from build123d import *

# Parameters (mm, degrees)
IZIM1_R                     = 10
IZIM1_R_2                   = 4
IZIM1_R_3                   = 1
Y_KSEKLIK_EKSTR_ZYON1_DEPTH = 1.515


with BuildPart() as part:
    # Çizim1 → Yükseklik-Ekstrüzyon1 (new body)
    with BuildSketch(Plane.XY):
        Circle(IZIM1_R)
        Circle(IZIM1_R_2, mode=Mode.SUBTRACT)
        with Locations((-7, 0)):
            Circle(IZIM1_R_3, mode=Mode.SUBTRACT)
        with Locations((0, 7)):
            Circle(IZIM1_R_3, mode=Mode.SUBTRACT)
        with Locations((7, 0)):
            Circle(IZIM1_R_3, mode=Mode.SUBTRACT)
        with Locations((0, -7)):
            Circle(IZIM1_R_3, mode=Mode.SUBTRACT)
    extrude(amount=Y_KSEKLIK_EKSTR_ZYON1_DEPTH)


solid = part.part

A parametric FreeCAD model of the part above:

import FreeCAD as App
import Part
import Sketcher
Q = App.Units.Quantity

doc = App.newDocument("Part")
body = doc.addObject("PartDesign::Body", "Body")

sketch1 = body.newObject("Sketcher::SketchObject", "Sketch")
sketch1.AttachmentSupport = (doc.getObject("XY_Plane"), [""])
sketch1.MapMode = "FlatFace"
sketch1.addGeometry([
    Part.Circle(App.Vector(0, 0, 0), App.Vector(0, 0, 1), 10),
    Part.Circle(App.Vector(-7, 0, 0), App.Vector(0, 0, 1), 1),
    Part.Circle(App.Vector(0, -7, 0), App.Vector(0, 0, 1), 1),
    Part.Circle(App.Vector(0, 0, 0), App.Vector(0, 0, 1), 4),
    Part.Circle(App.Vector(7, 0, 0), App.Vector(0, 0, 1), 1),
    Part.Circle(App.Vector(0, 7, 0), App.Vector(0, 0, 1), 1),
], False)
sketch1.addConstraint([
    Sketcher.Constraint("Coincident", 0, 3, -1, 1),
    Sketcher.Constraint("Coincident", 3, 3, -1, 1),
    Sketcher.Constraint("Equal", 1, 2),
    Sketcher.Constraint("Equal", 2, 4),
    Sketcher.Constraint("Equal", 4, 5),
    Sketcher.Constraint("Symmetric", 1, 3, 4, 3, -1, 1),
    Sketcher.Constraint("Symmetric", 2, 3, 5, 3, -1, 1),
    Sketcher.Constraint("PointOnObject", 1, 3, -1),
    Sketcher.Constraint("PointOnObject", 2, 3, -2),
    Sketcher.Constraint("Diameter", 0, Q("20 mm")),
    Sketcher.Constraint("Diameter", 1, Q("2 mm")),
    Sketcher.Constraint("Diameter", 3, Q("8 mm")),
    Sketcher.Constraint("DistanceX", 1, 3, -1, 1, Q("7 mm")),
    Sketcher.Constraint("DistanceY", 2, 3, -1, 1, Q("7 mm")),
])
pad1 = body.newObject("PartDesign::Pad", "Pad")
pad1.Profile = sketch1
pad1.Length = 1.515

doc.recompute()
